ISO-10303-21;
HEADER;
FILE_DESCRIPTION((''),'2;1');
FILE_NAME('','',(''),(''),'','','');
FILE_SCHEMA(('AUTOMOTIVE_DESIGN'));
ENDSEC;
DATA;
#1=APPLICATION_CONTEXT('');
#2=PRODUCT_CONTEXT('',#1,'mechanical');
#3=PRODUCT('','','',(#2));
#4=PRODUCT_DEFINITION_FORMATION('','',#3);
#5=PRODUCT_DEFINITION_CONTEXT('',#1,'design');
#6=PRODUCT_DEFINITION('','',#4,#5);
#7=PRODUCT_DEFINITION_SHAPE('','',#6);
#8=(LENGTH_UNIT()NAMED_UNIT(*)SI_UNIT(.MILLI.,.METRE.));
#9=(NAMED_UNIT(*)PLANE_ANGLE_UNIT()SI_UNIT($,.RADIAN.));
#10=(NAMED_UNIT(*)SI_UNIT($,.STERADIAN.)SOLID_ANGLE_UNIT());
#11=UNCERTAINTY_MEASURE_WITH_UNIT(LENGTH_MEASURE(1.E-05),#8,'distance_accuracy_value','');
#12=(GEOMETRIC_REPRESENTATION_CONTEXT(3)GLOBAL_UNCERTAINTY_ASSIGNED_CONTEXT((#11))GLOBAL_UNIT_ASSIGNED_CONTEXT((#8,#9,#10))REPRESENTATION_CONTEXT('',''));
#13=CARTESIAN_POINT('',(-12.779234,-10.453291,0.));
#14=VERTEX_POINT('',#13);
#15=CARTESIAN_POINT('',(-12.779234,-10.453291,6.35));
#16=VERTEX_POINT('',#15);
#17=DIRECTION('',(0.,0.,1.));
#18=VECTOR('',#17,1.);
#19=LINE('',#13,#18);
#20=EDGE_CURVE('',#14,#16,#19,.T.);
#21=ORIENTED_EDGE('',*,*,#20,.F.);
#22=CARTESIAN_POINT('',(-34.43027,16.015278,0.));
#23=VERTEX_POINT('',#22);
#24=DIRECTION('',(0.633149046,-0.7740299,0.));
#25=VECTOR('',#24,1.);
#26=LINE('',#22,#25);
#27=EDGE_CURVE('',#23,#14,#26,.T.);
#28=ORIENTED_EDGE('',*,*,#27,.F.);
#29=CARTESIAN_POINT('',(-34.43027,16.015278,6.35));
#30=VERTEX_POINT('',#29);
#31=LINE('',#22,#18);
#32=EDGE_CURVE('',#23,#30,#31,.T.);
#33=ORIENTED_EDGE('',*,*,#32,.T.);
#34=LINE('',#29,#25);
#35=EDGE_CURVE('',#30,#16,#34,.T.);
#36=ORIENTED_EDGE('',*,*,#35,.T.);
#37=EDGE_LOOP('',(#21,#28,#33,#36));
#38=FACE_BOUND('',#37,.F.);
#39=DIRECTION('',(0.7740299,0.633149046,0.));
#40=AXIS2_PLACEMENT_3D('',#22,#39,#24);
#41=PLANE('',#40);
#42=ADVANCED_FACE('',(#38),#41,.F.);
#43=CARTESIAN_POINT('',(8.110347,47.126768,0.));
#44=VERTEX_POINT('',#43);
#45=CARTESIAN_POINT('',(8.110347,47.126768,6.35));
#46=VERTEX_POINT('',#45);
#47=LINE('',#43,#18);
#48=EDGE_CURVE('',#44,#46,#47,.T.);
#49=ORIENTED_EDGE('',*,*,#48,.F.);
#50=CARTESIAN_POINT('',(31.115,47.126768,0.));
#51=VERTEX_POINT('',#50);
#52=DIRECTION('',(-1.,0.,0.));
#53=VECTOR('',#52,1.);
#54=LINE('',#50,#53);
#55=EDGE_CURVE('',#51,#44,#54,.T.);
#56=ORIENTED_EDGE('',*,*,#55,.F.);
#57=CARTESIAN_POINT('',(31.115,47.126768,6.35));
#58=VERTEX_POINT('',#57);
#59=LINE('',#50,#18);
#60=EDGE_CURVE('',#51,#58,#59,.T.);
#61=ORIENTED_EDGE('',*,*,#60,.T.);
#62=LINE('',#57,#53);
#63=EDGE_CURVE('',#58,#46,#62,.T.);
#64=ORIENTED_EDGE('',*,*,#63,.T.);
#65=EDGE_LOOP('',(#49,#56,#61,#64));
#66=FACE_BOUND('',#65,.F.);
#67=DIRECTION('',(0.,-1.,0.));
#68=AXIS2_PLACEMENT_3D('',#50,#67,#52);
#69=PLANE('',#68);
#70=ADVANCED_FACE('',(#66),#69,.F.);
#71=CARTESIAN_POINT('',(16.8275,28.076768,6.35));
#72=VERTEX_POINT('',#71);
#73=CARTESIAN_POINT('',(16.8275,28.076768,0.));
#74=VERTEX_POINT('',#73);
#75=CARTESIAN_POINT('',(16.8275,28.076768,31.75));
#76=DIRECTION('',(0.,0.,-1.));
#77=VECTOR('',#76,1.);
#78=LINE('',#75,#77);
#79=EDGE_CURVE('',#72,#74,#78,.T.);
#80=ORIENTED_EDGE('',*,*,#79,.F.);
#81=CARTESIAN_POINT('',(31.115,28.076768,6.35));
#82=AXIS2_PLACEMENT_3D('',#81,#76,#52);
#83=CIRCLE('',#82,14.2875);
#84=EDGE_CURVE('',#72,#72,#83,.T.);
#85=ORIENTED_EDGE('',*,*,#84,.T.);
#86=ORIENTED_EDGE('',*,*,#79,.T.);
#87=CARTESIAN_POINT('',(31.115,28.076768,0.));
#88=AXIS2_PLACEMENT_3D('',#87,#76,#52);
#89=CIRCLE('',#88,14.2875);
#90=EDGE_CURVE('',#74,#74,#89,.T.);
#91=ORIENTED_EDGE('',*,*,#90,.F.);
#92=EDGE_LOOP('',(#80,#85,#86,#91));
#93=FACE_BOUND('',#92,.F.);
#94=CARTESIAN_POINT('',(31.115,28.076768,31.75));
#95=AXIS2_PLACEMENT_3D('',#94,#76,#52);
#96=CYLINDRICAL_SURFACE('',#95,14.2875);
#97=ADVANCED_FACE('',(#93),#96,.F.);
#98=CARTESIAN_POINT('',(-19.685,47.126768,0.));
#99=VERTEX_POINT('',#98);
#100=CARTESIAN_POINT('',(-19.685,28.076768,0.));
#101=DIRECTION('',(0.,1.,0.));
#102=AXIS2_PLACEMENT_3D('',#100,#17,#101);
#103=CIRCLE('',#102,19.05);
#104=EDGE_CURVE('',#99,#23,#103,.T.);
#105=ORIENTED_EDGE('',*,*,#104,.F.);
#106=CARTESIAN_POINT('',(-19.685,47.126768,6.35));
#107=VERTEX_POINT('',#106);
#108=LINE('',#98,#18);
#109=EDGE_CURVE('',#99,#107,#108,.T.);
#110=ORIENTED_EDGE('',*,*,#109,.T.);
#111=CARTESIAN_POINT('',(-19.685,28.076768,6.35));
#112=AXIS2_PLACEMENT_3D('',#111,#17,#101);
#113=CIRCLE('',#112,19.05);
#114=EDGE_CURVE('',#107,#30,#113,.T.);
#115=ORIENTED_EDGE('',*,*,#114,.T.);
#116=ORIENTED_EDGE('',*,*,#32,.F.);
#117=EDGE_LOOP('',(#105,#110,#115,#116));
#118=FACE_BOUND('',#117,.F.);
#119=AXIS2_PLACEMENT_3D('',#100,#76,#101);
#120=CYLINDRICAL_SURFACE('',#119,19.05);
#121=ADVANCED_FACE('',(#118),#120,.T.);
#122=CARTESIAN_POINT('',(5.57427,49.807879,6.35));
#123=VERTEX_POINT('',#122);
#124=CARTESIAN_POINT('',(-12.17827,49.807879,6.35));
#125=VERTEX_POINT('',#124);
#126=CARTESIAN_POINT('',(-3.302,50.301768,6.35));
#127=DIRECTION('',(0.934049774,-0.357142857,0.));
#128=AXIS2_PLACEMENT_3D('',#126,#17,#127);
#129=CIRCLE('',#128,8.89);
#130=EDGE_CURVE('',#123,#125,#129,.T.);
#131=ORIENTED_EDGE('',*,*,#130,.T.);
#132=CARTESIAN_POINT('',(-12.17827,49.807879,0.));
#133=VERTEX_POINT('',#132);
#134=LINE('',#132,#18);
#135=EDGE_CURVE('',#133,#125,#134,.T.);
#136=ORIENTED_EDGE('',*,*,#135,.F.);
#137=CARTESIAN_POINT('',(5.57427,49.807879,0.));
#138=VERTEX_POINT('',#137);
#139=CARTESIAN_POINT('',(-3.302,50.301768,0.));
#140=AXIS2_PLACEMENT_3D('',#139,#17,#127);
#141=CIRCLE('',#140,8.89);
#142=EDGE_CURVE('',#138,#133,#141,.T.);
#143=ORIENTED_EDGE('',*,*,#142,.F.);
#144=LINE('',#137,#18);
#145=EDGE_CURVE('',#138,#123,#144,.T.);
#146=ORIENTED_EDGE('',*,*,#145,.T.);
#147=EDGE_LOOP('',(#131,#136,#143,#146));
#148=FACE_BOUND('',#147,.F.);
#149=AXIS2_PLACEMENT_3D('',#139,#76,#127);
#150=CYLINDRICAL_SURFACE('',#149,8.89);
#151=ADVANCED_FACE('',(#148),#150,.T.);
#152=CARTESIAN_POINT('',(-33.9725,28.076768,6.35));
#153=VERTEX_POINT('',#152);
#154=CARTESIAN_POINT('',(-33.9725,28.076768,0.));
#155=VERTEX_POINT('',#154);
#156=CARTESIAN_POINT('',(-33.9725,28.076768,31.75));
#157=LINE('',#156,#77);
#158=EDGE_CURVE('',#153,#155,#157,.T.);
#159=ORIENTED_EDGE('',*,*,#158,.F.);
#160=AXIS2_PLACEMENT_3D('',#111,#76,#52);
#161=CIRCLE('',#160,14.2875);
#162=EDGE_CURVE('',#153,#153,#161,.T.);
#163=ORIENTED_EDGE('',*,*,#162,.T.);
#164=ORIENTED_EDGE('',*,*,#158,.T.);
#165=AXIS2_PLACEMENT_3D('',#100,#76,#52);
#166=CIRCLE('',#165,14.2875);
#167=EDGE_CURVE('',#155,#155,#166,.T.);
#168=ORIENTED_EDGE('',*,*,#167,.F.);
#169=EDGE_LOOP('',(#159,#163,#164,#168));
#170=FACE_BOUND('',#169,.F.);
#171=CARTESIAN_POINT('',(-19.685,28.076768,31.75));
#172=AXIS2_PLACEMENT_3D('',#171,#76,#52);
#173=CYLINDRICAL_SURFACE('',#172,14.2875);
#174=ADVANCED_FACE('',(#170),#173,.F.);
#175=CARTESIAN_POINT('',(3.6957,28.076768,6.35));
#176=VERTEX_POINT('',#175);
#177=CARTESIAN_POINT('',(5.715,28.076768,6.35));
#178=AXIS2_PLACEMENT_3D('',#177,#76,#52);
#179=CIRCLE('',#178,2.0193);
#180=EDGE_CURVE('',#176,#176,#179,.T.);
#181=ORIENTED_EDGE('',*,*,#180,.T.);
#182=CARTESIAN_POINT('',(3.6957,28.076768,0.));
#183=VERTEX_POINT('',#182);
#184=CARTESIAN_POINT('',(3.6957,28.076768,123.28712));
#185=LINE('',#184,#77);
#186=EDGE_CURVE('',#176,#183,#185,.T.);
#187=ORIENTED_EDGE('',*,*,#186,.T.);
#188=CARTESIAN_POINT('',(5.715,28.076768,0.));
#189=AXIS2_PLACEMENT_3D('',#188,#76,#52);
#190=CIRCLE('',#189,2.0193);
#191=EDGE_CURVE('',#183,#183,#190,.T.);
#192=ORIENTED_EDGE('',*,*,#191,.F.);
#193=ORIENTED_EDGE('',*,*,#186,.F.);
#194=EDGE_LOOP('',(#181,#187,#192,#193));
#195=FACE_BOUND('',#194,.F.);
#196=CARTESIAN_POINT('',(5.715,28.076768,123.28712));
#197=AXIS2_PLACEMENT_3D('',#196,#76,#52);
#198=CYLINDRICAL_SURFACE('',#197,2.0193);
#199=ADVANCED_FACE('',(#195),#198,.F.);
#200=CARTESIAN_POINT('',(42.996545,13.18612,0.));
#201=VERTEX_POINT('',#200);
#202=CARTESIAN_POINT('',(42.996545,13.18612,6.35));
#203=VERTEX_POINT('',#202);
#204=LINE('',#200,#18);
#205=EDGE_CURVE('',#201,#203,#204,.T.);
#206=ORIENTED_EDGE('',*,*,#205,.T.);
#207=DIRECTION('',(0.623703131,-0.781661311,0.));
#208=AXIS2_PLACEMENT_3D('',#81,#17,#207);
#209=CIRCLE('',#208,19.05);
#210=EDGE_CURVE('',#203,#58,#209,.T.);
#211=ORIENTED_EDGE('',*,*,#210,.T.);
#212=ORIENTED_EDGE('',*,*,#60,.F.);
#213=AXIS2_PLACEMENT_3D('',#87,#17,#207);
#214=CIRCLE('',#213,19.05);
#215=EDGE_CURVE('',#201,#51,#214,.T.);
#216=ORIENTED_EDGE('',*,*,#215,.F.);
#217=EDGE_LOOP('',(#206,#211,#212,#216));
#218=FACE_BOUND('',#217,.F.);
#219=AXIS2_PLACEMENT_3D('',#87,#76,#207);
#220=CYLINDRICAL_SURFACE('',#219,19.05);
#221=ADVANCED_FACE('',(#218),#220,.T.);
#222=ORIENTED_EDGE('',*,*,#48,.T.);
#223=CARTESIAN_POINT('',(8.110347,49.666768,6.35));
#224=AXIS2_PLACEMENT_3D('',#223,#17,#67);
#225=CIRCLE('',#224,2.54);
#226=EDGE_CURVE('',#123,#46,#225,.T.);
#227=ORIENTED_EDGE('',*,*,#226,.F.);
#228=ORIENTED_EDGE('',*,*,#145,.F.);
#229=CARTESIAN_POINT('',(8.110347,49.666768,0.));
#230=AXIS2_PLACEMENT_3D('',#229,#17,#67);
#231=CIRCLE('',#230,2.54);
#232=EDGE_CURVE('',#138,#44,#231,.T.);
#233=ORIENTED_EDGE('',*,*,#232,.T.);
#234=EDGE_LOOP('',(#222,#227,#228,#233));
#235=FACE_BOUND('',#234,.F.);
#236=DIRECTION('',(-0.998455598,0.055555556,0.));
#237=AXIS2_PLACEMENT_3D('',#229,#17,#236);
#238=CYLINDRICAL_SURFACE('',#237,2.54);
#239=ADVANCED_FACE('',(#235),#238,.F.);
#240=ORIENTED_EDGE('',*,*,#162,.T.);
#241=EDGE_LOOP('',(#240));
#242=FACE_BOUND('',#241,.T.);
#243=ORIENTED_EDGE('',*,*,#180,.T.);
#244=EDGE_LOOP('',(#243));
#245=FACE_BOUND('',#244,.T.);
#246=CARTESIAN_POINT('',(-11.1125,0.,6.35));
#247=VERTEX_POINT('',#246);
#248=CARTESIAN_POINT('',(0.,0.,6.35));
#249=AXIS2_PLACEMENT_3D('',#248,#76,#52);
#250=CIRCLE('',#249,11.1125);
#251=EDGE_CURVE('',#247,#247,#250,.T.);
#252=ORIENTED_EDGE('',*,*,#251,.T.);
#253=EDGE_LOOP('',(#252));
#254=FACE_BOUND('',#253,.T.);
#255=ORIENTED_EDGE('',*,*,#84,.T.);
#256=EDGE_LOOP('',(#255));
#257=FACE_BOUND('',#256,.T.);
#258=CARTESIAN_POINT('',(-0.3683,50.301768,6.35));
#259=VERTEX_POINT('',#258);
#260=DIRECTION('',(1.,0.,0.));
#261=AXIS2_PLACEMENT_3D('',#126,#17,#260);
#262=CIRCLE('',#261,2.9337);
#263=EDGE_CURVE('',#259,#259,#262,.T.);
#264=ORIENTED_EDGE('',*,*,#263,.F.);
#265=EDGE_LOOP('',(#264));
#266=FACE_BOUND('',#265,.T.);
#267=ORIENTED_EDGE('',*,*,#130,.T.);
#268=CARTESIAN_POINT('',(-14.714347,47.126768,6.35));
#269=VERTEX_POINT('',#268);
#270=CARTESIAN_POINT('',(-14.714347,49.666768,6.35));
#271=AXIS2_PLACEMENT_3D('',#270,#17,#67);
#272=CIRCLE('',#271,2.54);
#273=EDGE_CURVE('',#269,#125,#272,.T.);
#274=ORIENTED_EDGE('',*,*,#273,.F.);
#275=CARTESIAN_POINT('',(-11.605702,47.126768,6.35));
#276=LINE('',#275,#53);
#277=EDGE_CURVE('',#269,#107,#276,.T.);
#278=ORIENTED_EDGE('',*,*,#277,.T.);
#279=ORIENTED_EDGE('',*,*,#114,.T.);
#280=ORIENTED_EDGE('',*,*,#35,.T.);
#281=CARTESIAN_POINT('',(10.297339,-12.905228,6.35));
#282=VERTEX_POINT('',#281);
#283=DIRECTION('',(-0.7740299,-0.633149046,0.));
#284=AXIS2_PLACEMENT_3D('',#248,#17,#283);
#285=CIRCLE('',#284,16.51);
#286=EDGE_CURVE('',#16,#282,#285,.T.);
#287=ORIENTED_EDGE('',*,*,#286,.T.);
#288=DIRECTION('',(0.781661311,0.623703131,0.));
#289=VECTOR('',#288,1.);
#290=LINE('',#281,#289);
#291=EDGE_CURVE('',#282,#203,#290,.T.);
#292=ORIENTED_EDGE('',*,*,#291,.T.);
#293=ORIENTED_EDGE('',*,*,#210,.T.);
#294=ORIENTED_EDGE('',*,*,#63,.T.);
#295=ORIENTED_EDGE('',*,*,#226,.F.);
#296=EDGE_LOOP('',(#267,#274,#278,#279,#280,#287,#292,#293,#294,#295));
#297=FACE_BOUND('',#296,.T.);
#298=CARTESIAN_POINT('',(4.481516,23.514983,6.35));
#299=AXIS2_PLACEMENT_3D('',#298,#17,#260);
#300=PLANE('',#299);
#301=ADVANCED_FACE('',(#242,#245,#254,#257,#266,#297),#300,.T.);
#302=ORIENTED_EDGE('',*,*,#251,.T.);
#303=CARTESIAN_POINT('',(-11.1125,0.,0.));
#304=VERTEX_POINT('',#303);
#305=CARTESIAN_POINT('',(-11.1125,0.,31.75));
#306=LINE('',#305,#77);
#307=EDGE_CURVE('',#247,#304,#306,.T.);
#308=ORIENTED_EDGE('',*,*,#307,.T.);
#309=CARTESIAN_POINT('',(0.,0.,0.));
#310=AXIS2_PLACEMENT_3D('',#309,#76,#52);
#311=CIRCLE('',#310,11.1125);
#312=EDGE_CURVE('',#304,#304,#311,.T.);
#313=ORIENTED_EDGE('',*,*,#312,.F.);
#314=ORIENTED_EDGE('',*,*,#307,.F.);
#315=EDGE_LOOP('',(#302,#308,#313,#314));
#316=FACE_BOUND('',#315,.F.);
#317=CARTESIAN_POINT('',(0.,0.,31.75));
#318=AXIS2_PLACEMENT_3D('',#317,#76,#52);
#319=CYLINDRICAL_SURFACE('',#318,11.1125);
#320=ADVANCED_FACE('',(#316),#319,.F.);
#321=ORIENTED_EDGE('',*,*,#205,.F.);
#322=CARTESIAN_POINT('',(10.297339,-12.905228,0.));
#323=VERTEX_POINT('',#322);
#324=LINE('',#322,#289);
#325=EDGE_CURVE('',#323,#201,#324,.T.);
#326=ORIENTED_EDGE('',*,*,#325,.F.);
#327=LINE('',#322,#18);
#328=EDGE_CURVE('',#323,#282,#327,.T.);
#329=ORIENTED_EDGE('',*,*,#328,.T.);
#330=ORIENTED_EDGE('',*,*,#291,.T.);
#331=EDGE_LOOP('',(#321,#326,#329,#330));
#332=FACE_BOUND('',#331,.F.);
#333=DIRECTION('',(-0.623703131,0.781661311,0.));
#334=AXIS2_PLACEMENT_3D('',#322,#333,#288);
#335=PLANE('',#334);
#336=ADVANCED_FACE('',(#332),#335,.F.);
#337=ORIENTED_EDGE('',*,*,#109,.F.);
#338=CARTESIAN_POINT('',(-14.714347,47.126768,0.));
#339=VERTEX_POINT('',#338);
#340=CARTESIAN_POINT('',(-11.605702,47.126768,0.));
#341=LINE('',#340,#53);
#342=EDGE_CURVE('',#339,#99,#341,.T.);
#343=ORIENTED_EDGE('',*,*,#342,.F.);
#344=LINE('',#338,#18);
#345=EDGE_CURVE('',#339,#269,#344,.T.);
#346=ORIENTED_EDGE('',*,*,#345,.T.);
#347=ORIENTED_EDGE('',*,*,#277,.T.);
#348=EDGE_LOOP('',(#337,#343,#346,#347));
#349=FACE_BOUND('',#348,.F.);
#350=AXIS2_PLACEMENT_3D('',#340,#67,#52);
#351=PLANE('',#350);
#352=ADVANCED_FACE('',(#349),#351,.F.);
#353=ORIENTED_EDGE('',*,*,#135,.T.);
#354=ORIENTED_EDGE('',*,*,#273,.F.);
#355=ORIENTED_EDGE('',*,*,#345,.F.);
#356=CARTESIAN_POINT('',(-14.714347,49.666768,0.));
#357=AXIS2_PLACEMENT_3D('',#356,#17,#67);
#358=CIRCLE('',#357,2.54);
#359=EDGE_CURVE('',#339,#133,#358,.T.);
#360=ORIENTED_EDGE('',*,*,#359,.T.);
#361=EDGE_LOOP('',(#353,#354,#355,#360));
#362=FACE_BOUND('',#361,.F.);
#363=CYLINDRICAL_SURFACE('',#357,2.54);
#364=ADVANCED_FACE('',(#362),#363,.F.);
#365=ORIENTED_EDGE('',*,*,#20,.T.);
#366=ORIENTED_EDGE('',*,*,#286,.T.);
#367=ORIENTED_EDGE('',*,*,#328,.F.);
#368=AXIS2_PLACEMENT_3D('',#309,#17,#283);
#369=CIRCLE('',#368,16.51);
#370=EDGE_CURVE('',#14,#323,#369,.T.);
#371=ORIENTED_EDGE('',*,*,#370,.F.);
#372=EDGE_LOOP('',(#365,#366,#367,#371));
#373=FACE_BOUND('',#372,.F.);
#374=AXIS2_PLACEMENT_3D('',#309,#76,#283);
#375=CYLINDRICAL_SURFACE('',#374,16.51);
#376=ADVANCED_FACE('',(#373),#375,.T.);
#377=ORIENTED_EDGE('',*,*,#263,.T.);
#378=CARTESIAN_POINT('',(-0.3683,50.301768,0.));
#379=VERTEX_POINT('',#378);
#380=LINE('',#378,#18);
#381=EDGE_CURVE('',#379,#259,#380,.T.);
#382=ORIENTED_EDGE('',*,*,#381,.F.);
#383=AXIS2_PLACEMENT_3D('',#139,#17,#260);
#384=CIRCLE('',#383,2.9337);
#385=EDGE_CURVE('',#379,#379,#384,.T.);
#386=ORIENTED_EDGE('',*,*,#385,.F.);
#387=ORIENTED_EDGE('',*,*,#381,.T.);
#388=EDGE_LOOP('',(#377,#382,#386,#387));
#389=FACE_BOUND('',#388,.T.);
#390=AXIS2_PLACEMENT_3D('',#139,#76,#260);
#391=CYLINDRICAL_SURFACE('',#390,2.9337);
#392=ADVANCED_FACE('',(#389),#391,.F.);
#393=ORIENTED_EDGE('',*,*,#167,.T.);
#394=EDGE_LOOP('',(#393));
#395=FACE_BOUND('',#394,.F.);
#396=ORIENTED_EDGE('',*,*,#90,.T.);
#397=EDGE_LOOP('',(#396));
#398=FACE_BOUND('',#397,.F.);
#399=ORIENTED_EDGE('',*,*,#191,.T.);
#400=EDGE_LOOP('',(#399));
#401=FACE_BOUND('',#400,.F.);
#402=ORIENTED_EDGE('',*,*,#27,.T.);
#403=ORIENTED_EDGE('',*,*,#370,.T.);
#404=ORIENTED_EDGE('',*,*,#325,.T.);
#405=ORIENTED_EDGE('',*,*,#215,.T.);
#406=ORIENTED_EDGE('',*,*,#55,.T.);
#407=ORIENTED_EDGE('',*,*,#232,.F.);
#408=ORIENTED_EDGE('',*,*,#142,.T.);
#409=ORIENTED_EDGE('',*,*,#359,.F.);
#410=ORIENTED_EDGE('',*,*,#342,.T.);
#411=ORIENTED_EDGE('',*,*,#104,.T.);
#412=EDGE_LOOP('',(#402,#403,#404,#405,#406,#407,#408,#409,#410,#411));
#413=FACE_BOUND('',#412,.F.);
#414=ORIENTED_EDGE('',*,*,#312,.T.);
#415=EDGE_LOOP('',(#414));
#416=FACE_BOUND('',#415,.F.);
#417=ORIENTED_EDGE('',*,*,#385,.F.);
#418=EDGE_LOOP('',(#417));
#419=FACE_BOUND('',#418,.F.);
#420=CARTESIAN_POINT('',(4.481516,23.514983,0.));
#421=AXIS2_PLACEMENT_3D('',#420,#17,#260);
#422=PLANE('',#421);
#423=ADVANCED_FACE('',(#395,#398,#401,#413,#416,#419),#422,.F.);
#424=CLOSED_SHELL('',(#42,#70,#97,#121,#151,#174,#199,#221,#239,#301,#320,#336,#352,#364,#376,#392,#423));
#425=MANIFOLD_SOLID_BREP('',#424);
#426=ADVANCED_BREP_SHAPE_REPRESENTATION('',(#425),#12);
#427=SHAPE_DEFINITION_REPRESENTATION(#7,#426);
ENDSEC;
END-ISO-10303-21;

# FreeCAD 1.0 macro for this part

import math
import FreeCAD as App
import Part
import Sketcher
Q = App.Units.Quantity


def edges_at(feature, points):
    """Names of the edges that pass closest to the given points."""
    edges = feature.Shape.Edges
    near = lambda p: min(range(len(edges)), key=lambda i: edges[i].distToShape(Part.Vertex(*p))[0])
    return sorted({f"Edge{near(p) + 1}" for p in points})

doc = App.newDocument("Part")
body = doc.addObject("PartDesign::Body", "Body")

sketch1 = body.newObject("Sketcher::SketchObject", "Sketch")
sketch1.AttachmentSupport = (doc.getObject("XY_Plane"), [""])
sketch1.MapMode = "FlatFace"
sketch1.addGeometry([
    Part.LineSegment(App.Vector(-11.6, 47.1, 0), App.Vector(-19.7, 47.1, 0)),
    Part.ArcOfCircle(Part.Circle(App.Vector(-19.7, 28.1, 0), App.Vector(0, 0, 1), 19), math.radians(90), math.radians(219)),
    Part.LineSegment(App.Vector(-34.4, 16, 0), App.Vector(-12.8, -10.5, 0)),
    Part.ArcOfCircle(Part.Circle(App.Vector(0, 0, 0), App.Vector(0, 0, 1), 16.5), math.radians(-141), math.radians(-51)),
    Part.LineSegment(App.Vector(10.3, -12.9, 0), App.Vector(43, 13.2, 0)),
    Part.ArcOfCircle(Part.Circle(App.Vector(31.1, 28.1, 0), App.Vector(0, 0, 1), 19), math.radians(-51), math.radians(90)),
    Part.LineSegment(App.Vector(31.1, 47.1, 0), App.Vector(5, 47.1, 0)),
    Part.ArcOfCircle(Part.Circle(App.Vector(-3.3, 50.3, 0), App.Vector(0, 0, 1), 8.9), math.radians(-21), math.radians(201)),
    Part.Circle(App.Vector(-3.3, 50.3, 0), App.Vector(0, 0, 1), 2.9),
], False)
sketch1.addConstraint([
    Sketcher.Constraint("Tangent", 0, 2, 1, 1),
    Sketcher.Constraint("Tangent", 1, 2, 2, 1),
    Sketcher.Constraint("Tangent", 2, 2, 3, 1),
    Sketcher.Constraint("Tangent", 3, 2, 4, 1),
    Sketcher.Constraint("Tangent", 4, 2, 5, 1),
    Sketcher.Constraint("Tangent", 5, 2, 6, 1),
    Sketcher.Constraint("Coincident", 6, 2, 7, 1),
    Sketcher.Constraint("Coincident", 7, 2, 0, 1),
    Sketcher.Constraint("Horizontal", 0),
    Sketcher.Constraint("Horizontal", 6),
    Sketcher.Constraint("Coincident", 3, 3, -1, 1),
    Sketcher.Constraint("Coincident", 8, 3, 7, 3),
    Sketcher.Constraint("Equal", 1, 5),
    Sketcher.Constraint("Horizontal", 1, 3, 5, 3),
    Sketcher.Constraint("Radius", 1, Q("0.75 in")),
    Sketcher.Constraint("Radius", 3, Q("0.65 in")),
    Sketcher.Constraint("Radius", 7, Q("0.35 in")),
    Sketcher.Constraint("Diameter", 8, Q("0.231 in")),
    Sketcher.Constraint("DistanceX", 1, 3, 5, 3, Q("2 in")),
    Sketcher.Constraint("DistanceX", 7, 3, -1, 1, Q("0.13 in")),
    Sketcher.Constraint("DistanceX", 1, 3, -1, 1, Q("0.775 in")),
    Sketcher.Constraint("DistanceY", 1, 3, 7, 3, Q("0.875 in")),
    Sketcher.Constraint("Distance", 4, 41.832959),
])
pad1 = body.newObject("PartDesign::Pad", "Pad")
pad1.Profile = sketch1
pad1.Length = Q("0.25 in")

sketch2 = body.newObject("Sketcher::SketchObject", "Sketch001")
sketch2.AttachmentSupport = (doc.getObject("XY_Plane"), [""])
sketch2.MapMode = "FlatFace"
sketch2.AttachmentOffset = App.Placement(App.Vector(0, 0, 0.25 * 25.4), App.Rotation())
sketch2.addGeometry([
    Part.Circle(App.Vector(-20, 28, 0), App.Vector(0, 0, 1), 14),
    Part.Circle(App.Vector(31, 28, 0), App.Vector(0, 0, 1), 14),
], False)
sketch2.addConstraint([
    Sketcher.Constraint("Equal", 0, 1),
    Sketcher.Constraint("Horizontal", 0, 3, 1, 3),
    Sketcher.Constraint("Diameter", 0, Q("1.125 in")),
    Sketcher.Constraint("DistanceX", 0, 3, 1, 3, Q("2 in")),
    Sketcher.Constraint("DistanceX", 0, 3, -1, 1, Q("0.775 in")),
    Sketcher.Constraint("DistanceY", -1, 1, 0, 3, 28.076768),
])
doc.recompute()
hole = body.newObject("PartDesign::Hole", "Hole")
hole.Profile = sketch2
hole.ThreadType = "None"
hole.Diameter = Q("1.125 in")
hole.DepthType = "Dimension"
hole.Depth = Q("1 in")
hole.DrillPoint = "Angled"
hole.DrillPointAngle = 118

sketch3 = body.newObject("Sketcher::SketchObject", "Sketch002")
sketch3.AttachmentSupport = (doc.getObject("XY_Plane"), [""])
sketch3.MapMode = "FlatFace"
sketch3.AttachmentOffset = App.Placement(App.Vector(0, 0, 0.25 * 25.4), App.Rotation())
sketch3.addGeometry(Part.Circle(App.Vector(0, 0, 0), App.Vector(0, 0, 1), 11), False)
sketch3.addConstraint([
    Sketcher.Constraint("Coincident", 0, 3, -1, 1),
    Sketcher.Constraint("Diameter", 0, Q("0.875 in")),
])
doc.recompute()
hole2 = body.newObject("PartDesign::Hole", "Hole001")
hole2.Profile = sketch3
hole2.ThreadType = "None"
hole2.Diameter = Q("0.875 in")
hole2.DepthType = "Dimension"
hole2.Depth = Q("1 in")
hole2.DrillPoint = "Angled"
hole2.DrillPointAngle = 118

sketch4 = body.newObject("Sketcher::SketchObject", "Sketch003")
sketch4.AttachmentSupport = (doc.getObject("XY_Plane"), [""])
sketch4.MapMode = "FlatFace"
sketch4.AttachmentOffset = App.Placement(App.Vector(0, 0, 0.25 * 25.4), App.Rotation())
sketch4.addGeometry(Part.Circle(App.Vector(5.7, 28.1, 0), App.Vector(0, 0, 1), 2), False)
sketch4.addConstraint([
    Sketcher.Constraint("Diameter", 0, Q("0.159 in")),
    Sketcher.Constraint("DistanceX", -1, 1, 0, 3, Q("0.225 in")),
    Sketcher.Constraint("DistanceY", -1, 1, 0, 3, 28.076768),
])
doc.recompute()
hole3 = body.newObject("PartDesign::Hole", "Hole002")
hole3.Profile = sketch4
hole3.ThreadType = "None"
hole3.Diameter = Q("0.159 in")
hole3.DepthType = "ThroughAll"
doc.recompute()

fillet = body.newObject("PartDesign::Fillet", "Fillet")
fillet.Base = (hole3, edges_at(hole3, [(5.002, 47.127, 3.175), (-11.606, 47.127, 3.175)]))
fillet.Radius = Q("0.1 in")

doc.recompute()
